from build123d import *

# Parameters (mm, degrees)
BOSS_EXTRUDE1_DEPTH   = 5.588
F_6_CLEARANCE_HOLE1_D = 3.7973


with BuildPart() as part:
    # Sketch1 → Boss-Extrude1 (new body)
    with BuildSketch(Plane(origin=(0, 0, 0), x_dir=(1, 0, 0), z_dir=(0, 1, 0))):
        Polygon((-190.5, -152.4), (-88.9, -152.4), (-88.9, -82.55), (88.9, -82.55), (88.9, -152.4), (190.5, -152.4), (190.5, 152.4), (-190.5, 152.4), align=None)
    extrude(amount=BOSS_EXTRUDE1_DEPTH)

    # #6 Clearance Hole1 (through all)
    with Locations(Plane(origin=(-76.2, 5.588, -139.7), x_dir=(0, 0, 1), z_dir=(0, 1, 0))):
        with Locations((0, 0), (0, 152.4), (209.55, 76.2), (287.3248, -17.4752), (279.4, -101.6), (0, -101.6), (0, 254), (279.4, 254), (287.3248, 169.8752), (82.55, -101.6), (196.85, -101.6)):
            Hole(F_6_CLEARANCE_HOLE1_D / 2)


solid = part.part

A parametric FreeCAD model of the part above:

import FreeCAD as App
import Part
import Sketcher
Q = App.Units.Quantity


def add_polygon(sketch, points):
    """Adds a closed chain of lines whose ends are joined by coincident constraints."""
    first, n = sketch.GeometryCount, len(points)
    for a, b in zip(points, points[1:] + points[:1]):
        sketch.addGeometry(Part.LineSegment(App.Vector(*a, 0), App.Vector(*b, 0)), False)
    for i in range(n):
        sketch.addConstraint(Sketcher.Constraint("Coincident", first + i, 2, first + (i + 1) % n, 1))

doc = App.newDocument("Part")
body = doc.addObject("PartDesign::Body", "Body")

sketch1 = body.newObject("Sketcher::SketchObject", "Sketch")
sketch1.AttachmentSupport = (doc.getObject("XZ_Plane"), [""])
sketch1.MapMode = "FlatFace"
add_polygon(sketch1, [(-190.5, 152.4), (-88.9, 152.4), (-88.9, 82.55), (88.9, 82.55), (88.9, 152.4), (190.5, 152.4), (190.5, -152.4), (-190.5, -152.4)])
sketch1.addConstraint(Sketcher.Constraint("Horizontal", 0))
sketch1.addConstraint(Sketcher.Constraint("Vertical", 1))
sketch1.addConstraint(Sketcher.Constraint("Horizontal", 2))
sketch1.addConstraint(Sketcher.Constraint("Vertical", 3))
sketch1.addConstraint(Sketcher.Constraint("Horizontal", 4))
sketch1.addConstraint(Sketcher.Constraint("Vertical", 5))
sketch1.addConstraint(Sketcher.Constraint("Horizontal", 6))
sketch1.addConstraint(Sketcher.Constraint("Vertical", 7))
sketch1.addConstraint(Sketcher.Constraint("Symmetric", 4, 2, 6, 2, -1, 1))
sketch1.addConstraint(Sketcher.Constraint("Symmetric", 0, 2, 3, 2, -2))
sketch1.addConstraint(Sketcher.Constraint("DistanceX", 0, 1, 0, 2, Q("4 in")))
sketch1.addConstraint(Sketcher.Constraint("DistanceX", 2, 1, 2, 2, Q("7 in")))
sketch1.addConstraint(Sketcher.Constraint("DistanceY", 5, 2, 5, 1, Q("12 in")))
sketch1.addConstraint(Sketcher.Constraint("DistanceY", 1, 2, 1, 1, Q("2.75 in")))
pad1 = body.newObject("PartDesign::Pad", "Pad")
pad1.Profile = sketch1
pad1.Length = Q("0.22 in")
pad1.Reversed = True

sketch2 = body.newObject("Sketcher::SketchObject", "Sketch001")
sketch2.AttachmentSupport = (doc.getObject("XZ_Plane"), [""])
sketch2.MapMode = "FlatFace"
sketch2.AttachmentOffset = App.Placement(App.Vector(0, 0, -0.22 * 25.4), App.Rotation())
sketch2.addGeometry(Part.Circle(App.Vector(-76.2, -139.7, 0), App.Vector(0, 0, 1), 1.89865), False)
sketch2.addGeometry(Part.Circle(App.Vector(76.2, -139.7, 0), App.Vector(0, 0, 1), 1.89865), False)
sketch2.addGeometry(Part.Circle(App.Vector(0, 69.85, 0), App.Vector(0, 0, 1), 1.89865), False)
sketch2.addGeometry(Part.Circle(App.Vector(-93.6752, 147.6248, 0), App.Vector(0, 0, 1), 1.89865), False)
sketch2.addGeometry(Part.Circle(App.Vector(-177.8, 139.7, 0), App.Vector(0, 0, 1), 1.89865), False)
sketch2.addGeometry(Part.Circle(App.Vector(-177.8, -139.7, 0), App.Vector(0, 0, 1), 1.89865), False)
sketch2.addGeometry(Part.Circle(App.Vector(177.8, -139.7, 0), App.Vector(0, 0, 1), 1.89865), False)
sketch2.addGeometry(Part.Circle(App.Vector(177.8, 139.7, 0), App.Vector(0, 0, 1), 1.89865), False)
sketch2.addGeometry(Part.Circle(App.Vector(93.6752, 147.6248, 0), App.Vector(0, 0, 1), 1.89865), False)
sketch2.addGeometry(Part.Circle(App.Vector(-177.8, -57.15, 0), App.Vector(0, 0, 1), 1.89865), False)
sketch2.addGeometry(Part.Circle(App.Vector(-177.8, 57.15, 0), App.Vector(0, 0, 1), 1.89865), False)
sketch2.addConstraint(Sketcher.Constraint("Equal", 0, 1))
sketch2.addConstraint(Sketcher.Constraint("Equal", 1, 2))
sketch2.addConstraint(Sketcher.Constraint("Equal", 2, 3))
sketch2.addConstraint(Sketcher.Constraint("Equal", 3, 4))
sketch2.addConstraint(Sketcher.Constraint("Equal", 4, 5))
sketch2.addConstraint(Sketcher.Constraint("Equal", 5, 6))
sketch2.addConstraint(Sketcher.Constraint("Equal", 6, 7))
sketch2.addConstraint(Sketcher.Constraint("Equal", 7, 8))
sketch2.addConstraint(Sketcher.Constraint("Equal", 8, 9))
sketch2.addConstraint(Sketcher.Constraint("Equal", 9, 10))
sketch2.addConstraint(Sketcher.Constraint("Symmetric", 4, 3, 6, 3, -1, 1))
sketch2.addConstraint(Sketcher.Constraint("Symmetric", 5, 3, 7, 3, -1, 1))
sketch2.addConstraint(Sketcher.Constraint("Symmetric", 0, 3, 1, 3, -2))
sketch2.addConstraint(Sketcher.Constraint("Symmetric", 5, 3, 6, 3, -2))
sketch2.addConstraint(Sketcher.Constraint("Symmetric", 3, 3, 8, 3, -2))
sketch2.addConstraint(Sketcher.Constraint("Symmetric", 9, 3, 10, 3, -1))
sketch2.addConstraint(Sketcher.Constraint("PointOnObject", 2, 3, -2))
sketch2.addConstraint(Sketcher.Constraint("Horizontal", 1, 3, 5, 3))
sketch2.addConstraint(Sketcher.Constraint("Vertical", 5, 3, 9, 3))
sketch2.addConstraint(Sketcher.Constraint("DistanceX", 0, 3, -1, 1, Q("3 in")))
sketch2.addConstraint(Sketcher.Constraint("DistanceX", 4, 3, -1, 1, Q("7 in")))
sketch2.addConstraint(Sketcher.Constraint("DistanceY", 0, 3, 4, 3, Q("11 in")))
sketch2.addConstraint(Sketcher.Constraint("DistanceY", 9, 3, 2, 3, Q("5 in")))
sketch2.addConstraint(Sketcher.Constraint("Diameter", 0, Q("0.1495 in")))
sketch2.addConstraint(Sketcher.Constraint("DistanceY", 9, 3, 10, 3, Q("4.5 in")))
sketch2.addConstraint(Sketcher.Constraint("DistanceX", 3, 3, -1, 1, Q("3.688 in")))
sketch2.addConstraint(Sketcher.Constraint("DistanceY", -1, 1, 3, 3, Q("5.812 in")))
doc.recompute()
hole = body.newObject("PartDesign::Hole", "Hole")
hole.Profile = sketch2
hole.ThreadType = "None"
hole.Diameter = Q("0.1495 in")
hole.DepthType = "ThroughAll"
hole.Reversed = True

doc.recompute()
